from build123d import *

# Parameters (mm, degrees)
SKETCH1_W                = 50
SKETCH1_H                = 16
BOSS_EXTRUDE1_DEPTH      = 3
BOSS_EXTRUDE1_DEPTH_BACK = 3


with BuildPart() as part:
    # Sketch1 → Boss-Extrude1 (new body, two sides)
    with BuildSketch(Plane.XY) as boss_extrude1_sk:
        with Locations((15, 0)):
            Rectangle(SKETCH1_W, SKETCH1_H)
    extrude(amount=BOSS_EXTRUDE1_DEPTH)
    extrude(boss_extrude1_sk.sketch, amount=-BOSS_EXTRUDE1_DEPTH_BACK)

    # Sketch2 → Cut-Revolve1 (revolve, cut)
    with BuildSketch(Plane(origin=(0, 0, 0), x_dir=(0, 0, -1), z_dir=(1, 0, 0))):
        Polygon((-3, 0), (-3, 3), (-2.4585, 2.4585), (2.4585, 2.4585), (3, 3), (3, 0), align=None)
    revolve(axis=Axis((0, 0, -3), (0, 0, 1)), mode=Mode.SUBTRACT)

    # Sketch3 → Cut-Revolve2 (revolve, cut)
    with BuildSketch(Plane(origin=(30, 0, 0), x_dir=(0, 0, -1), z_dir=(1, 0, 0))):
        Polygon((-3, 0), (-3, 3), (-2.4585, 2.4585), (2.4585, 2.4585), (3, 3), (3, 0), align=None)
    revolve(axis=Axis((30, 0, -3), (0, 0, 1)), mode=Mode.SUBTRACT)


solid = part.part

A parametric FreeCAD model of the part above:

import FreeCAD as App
import Part
import Sketcher
from FreeCAD import Vector
Q = App.Units.Quantity

doc = App.newDocument("Part")
body = doc.addObject("PartDesign::Body", "Body")

# Sketch on XY plane
sketch1 = body.newObject("Sketcher::SketchObject", "Sketch")
sketch1.AttachmentSupport = (doc.getObject("XY_Plane"), [""])
sketch1.MapMode = "FlatFace"
sketch1.addGeometry([
    Part.LineSegment(Vector(-10, 8, 0), Vector(-10, -8, 0)),
    Part.LineSegment(Vector(-10, -8, 0), Vector(40, -8, 0)),
    Part.LineSegment(Vector(40, -8, 0), Vector(40, 8, 0)),
    Part.LineSegment(Vector(40, 8, 0), Vector(-10, 8, 0)),
], False)
sketch1.addConstraint([
    Sketcher.Constraint("Coincident", 0, 2, 1, 1),
    Sketcher.Constraint("Coincident", 1, 2, 2, 1),
    Sketcher.Constraint("Coincident", 2, 2, 3, 1),
    Sketcher.Constraint("Coincident", 3, 2, 0, 1),
    Sketcher.Constraint("Vertical", 0),
    Sketcher.Constraint("Horizontal", 1),
    Sketcher.Constraint("Vertical", 2),
    Sketcher.Constraint("Horizontal", 3),
    Sketcher.Constraint("DistanceX", 1, 1, 1, 2, Q("50 mm")),
    Sketcher.Constraint("DistanceY", 0, 2, 0, 1, Q("16 mm")),
    Sketcher.Constraint("DistanceX", 0, 2, -1, 1, Q("10 mm")),
    Sketcher.Constraint("DistanceY", 0, 2, -1, 1, Q("8 mm")),
])
pad1 = body.newObject("PartDesign::Pad", "Pad")
pad1.Profile = sketch1
pad1.Type = "TwoLengths"
pad1.Length = 3
pad1.Length2 = 3

# Sketch on YZ plane
sketch2 = body.newObject("Sketcher::SketchObject", "Sketch001")
sketch2.AttachmentSupport = (doc.getObject("YZ_Plane"), [""])
sketch2.MapMode = "FlatFace"
sketch2.addGeometry([
    Part.LineSegment(Vector(3, 3, 0), Vector(0, 3, 0)),  # 0
    Part.LineSegment(Vector(0, 3, 0), Vector(0, -3, 0)),  # 1
    Part.LineSegment(Vector(0, -3, 0), Vector(3, -3, 0)),  # 2
    Part.LineSegment(Vector(3, -3, 0), Vector(2.5, -2.5, 0)),  # 3
    Part.LineSegment(Vector(2.5, -2.5, 0), Vector(2.5, 2.5, 0)),  # 4
    Part.LineSegment(Vector(2.5, 2.5, 0), Vector(3, 3, 0)),  # 5
], False)
sketch2.addConstraint([
    Sketcher.Constraint("Coincident", 0, 2, 1, 1),
    Sketcher.Constraint("Coincident", 1, 2, 2, 1),
    Sketcher.Constraint("Coincident", 2, 2, 3, 1),
    Sketcher.Constraint("Coincident", 3, 2, 4, 1),
    Sketcher.Constraint("Coincident", 4, 2, 5, 1),
    Sketcher.Constraint("Coincident", 5, 2, 0, 1),
    Sketcher.Constraint("Horizontal", 0),
    Sketcher.Constraint("Vertical", 1),
    Sketcher.Constraint("Horizontal", 2),
    Sketcher.Constraint("Vertical", 4),
    Sketcher.Constraint("Symmetric", 0, 2, 1, 2, -1, 1),
    Sketcher.Constraint("Perpendicular", 3, 5),
    Sketcher.Constraint("Vertical", 2, 2, 5, 2),
    Sketcher.Constraint("Equal", 3, 5),
    Sketcher.Constraint("DistanceX", 0, 2, 0, 1, Q("3 mm")),
    Sketcher.Constraint("DistanceY", 1, 2, 1, 1, Q("6 mm")),
    Sketcher.Constraint("DistanceY", 4, 1, 4, 2, Q("4.917 mm")),
])
groove = body.newObject("PartDesign::Groove", "Groove")
groove.Profile = sketch2
groove.ReferenceAxis = (sketch2, ["V_Axis"])
groove.Angle = 360

# Sketch on YZ plane
sketch3 = body.newObject("Sketcher::SketchObject", "Sketch002")
sketch3.AttachmentSupport = (doc.getObject("YZ_Plane"), [""])
sketch3.MapMode = "FlatFace"
sketch3.AttachmentOffset = App.Placement(Vector(0, 0, 30), App.Rotation())
sketch3.addGeometry([
    Part.LineSegment(Vector(3, 3, 0), Vector(0, 3, 0)),  # 0
    Part.LineSegment(Vector(0, 3, 0), Vector(0, -3, 0)),  # 1
    Part.LineSegment(Vector(0, -3, 0), Vector(3, -3, 0)),  # 2
    Part.LineSegment(Vector(3, -3, 0), Vector(2.5, -2.5, 0)),  # 3
    Part.LineSegment(Vector(2.5, -2.5, 0), Vector(2.5, 2.5, 0)),  # 4
    Part.LineSegment(Vector(2.5, 2.5, 0), Vector(3, 3, 0)),  # 5
], False)
sketch3.addConstraint([
    Sketcher.Constraint("Coincident", 0, 2, 1, 1),
    Sketcher.Constraint("Coincident", 1, 2, 2, 1),
    Sketcher.Constraint("Coincident", 2, 2, 3, 1),
    Sketcher.Constraint("Coincident", 3, 2, 4, 1),
    Sketcher.Constraint("Coincident", 4, 2, 5, 1),
    Sketcher.Constraint("Coincident", 5, 2, 0, 1),
    Sketcher.Constraint("Horizontal", 0),
    Sketcher.Constraint("Vertical", 1),
    Sketcher.Constraint("Horizontal", 2),
    Sketcher.Constraint("Vertical", 4),
    Sketcher.Constraint("Symmetric", 0, 2, 1, 2, -1, 1),
    Sketcher.Constraint("Perpendicular", 3, 5),
    Sketcher.Constraint("Vertical", 2, 2, 5, 2),
    Sketcher.Constraint("Equal", 3, 5),
    Sketcher.Constraint("DistanceX", 0, 2, 0, 1, Q("3 mm")),
    Sketcher.Constraint("DistanceY", 1, 2, 1, 1, Q("6 mm")),
    Sketcher.Constraint("DistanceY", 4, 1, 4, 2, Q("4.917 mm")),
])
groove2 = body.newObject("PartDesign::Groove", "Groove001")
groove2.Profile = sketch3
groove2.ReferenceAxis = (sketch3, ["V_Axis"])
groove2.Angle = 360

doc.recompute()
